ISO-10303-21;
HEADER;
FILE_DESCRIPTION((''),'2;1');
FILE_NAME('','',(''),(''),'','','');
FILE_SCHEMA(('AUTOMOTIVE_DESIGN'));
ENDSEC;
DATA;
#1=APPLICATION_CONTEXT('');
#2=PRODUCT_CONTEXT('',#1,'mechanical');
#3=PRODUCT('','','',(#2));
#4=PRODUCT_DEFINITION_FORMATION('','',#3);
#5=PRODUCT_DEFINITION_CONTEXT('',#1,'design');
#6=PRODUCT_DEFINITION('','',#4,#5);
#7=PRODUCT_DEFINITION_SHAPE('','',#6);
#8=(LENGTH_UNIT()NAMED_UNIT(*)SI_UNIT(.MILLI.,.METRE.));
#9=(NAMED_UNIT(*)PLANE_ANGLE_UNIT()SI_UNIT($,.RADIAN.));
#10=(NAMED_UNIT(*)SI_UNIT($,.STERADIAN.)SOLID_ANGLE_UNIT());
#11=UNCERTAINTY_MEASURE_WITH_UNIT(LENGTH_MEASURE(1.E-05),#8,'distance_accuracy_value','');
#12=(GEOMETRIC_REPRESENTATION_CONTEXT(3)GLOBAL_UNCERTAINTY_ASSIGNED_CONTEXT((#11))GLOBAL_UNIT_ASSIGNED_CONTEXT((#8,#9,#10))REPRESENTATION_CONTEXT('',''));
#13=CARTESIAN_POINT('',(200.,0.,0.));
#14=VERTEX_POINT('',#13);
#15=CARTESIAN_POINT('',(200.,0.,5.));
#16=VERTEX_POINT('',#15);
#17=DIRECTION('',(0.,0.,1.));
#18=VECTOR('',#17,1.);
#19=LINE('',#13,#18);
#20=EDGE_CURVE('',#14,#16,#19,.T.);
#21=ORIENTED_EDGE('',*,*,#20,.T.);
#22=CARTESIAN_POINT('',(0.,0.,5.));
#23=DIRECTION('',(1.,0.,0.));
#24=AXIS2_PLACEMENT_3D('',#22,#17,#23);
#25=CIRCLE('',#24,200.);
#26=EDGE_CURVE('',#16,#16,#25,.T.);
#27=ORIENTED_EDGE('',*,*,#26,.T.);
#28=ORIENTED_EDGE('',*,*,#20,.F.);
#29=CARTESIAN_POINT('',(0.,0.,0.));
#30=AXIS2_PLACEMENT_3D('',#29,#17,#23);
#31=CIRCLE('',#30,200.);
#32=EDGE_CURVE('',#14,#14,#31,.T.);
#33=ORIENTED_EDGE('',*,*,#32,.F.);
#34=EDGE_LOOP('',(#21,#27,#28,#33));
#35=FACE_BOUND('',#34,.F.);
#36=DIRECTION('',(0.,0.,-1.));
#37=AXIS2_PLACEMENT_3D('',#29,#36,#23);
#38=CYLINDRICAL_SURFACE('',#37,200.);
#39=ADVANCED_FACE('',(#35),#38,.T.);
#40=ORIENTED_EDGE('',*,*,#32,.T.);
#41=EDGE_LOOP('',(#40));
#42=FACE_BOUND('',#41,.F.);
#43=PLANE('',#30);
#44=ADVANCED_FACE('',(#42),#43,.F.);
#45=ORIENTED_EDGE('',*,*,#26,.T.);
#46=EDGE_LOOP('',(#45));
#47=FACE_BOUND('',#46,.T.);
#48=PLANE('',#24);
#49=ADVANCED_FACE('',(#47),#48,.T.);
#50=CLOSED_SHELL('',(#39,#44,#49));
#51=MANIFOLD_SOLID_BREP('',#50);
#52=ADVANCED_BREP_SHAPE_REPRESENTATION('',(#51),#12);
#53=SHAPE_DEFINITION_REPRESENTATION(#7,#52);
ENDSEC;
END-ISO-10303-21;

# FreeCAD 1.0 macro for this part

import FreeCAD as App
import Part
import Sketcher

V = App.Vector
Q = App.Units.Quantity

doc = App.newDocument("Part")
body = doc.addObject("PartDesign::Body", "Body")

# Sketch on XY plane
sketch1 = body.newObject("Sketcher::SketchObject", "Sketch")
sketch1.AttachmentSupport = (doc.getObject("XY_Plane"), [""])
sketch1.MapMode = "FlatFace"
sketch1.addGeometry(Part.Circle(V(0, 0, 0), V(0, 0, 1), 200), False)
sketch1.addConstraint([
    Sketcher.Constraint("Coincident", 0, 3, -1, 1),
    Sketcher.Constraint("Diameter", 0, Q("400 mm")),
])
pad1 = body.newObject("PartDesign::Pad", "Pad")
pad1.Profile = sketch1
pad1.Length = 5

doc.recompute()
